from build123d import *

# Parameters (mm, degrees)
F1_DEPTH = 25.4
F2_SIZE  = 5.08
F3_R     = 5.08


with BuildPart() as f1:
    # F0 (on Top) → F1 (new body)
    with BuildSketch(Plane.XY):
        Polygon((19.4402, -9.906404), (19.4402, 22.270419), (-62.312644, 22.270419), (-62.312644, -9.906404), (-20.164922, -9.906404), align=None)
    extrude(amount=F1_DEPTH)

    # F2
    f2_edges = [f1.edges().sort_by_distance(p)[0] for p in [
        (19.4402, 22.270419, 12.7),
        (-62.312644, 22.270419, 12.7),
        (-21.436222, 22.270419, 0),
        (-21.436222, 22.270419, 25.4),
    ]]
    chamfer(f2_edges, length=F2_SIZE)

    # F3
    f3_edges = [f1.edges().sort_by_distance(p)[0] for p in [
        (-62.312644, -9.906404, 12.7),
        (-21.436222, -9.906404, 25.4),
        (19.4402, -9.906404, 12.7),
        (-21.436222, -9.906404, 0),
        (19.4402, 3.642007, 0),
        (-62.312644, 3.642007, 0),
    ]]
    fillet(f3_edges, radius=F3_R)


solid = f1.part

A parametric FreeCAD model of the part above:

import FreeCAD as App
import Part
import Sketcher
from FreeCAD import Vector
Q = App.Units.Quantity


def edges_at(feature, points):
    """Names of the edges that pass closest to the given points."""
    edges = feature.Shape.Edges
    near = lambda p: min(range(len(edges)), key=lambda i: edges[i].distToShape(Part.Vertex(*p))[0])
    return sorted({f"Edge{near(p) + 1}" for p in points})

doc = App.newDocument("Part")
params = doc.addObject("Spreadsheet::Sheet", "Params")
for row, (alias, value) in enumerate([
    ("pad1_length", "1 in"),
    ("chamfer_size", "0.2 in"),
    ("fillet_radius", "0.2 in"),
], start=1):
    params.set(f"A{row}", alias)
    params.set(f"B{row}", "=" + value)
    params.setAlias(f"B{row}", alias)

body = doc.addObject("PartDesign::Body", "Body")

sketch1 = body.newObject("Sketcher::SketchObject", "Sketch")
sketch1.AttachmentSupport = (doc.getObject("XY_Plane"), [""])
sketch1.MapMode = "FlatFace"
sketch1.addGeometry(Part.LineSegment(Vector(19, -10, 0), Vector(19, 22, 0)), False)
sketch1.addGeometry(Part.LineSegment(Vector(19, 22, 0), Vector(-62, 22, 0)), False)
sketch1.addGeometry(Part.LineSegment(Vector(-62, 22, 0), Vector(-62, -10, 0)), False)
sketch1.addGeometry(Part.LineSegment(Vector(-62, -10, 0), Vector(19, -10, 0)), False)
sketch1.addConstraint(Sketcher.Constraint("Coincident", 0, 2, 1, 1))
sketch1.addConstraint(Sketcher.Constraint("Coincident", 1, 2, 2, 1))
sketch1.addConstraint(Sketcher.Constraint("Coincident", 2, 2, 3, 1))
sketch1.addConstraint(Sketcher.Constraint("Coincident", 3, 2, 0, 1))
sketch1.addConstraint(Sketcher.Constraint("Vertical", 0))
sketch1.addConstraint(Sketcher.Constraint("Horizontal", 1))
sketch1.addConstraint(Sketcher.Constraint("Vertical", 2))
sketch1.addConstraint(Sketcher.Constraint("Horizontal", 3))
sketch1.addConstraint(Sketcher.Constraint("DistanceX", -1, 1, 0, 2, Q("19.4402 mm")))
sketch1.addConstraint(Sketcher.Constraint("DistanceX", 1, 2, 1, 1, Q("81.752844 mm")))
sketch1.addConstraint(Sketcher.Constraint("DistanceY", 0, 1, 0, 2, Q("32.176823 mm")))
sketch1.addConstraint(Sketcher.Constraint("DistanceY", -1, 1, 0, 2, Q("22.270419 mm")))
pad1 = body.newObject("PartDesign::Pad", "Pad")
pad1.Profile = sketch1
pad1.setExpression("Length", "Params.pad1_length")
doc.recompute()

chamfer = body.newObject("PartDesign::Chamfer", "Chamfer")
chamfer.Base = (pad1, edges_at(pad1, [
    (19.44, 22.27, 12.7),
    (-62.313, 22.27, 12.7),
    (-21.436, 22.27, 0),
    (-21.436, 22.27, 25.4),
]))
chamfer.setExpression("Size", "Params.chamfer_size")
doc.recompute()

fillet = body.newObject("PartDesign::Fillet", "Fillet")
fillet.Base = (chamfer, edges_at(chamfer, [
    (-62.313, -9.906, 12.7),
    (-21.436, -9.906, 25.4),
    (19.44, -9.906, 12.7),
    (-21.436, -9.906, 0),
    (19.44, 3.642, 0),
    (-62.313, 3.642, 0),
]))
fillet.setExpression("Radius", "Params.fillet_radius")

doc.recompute()
